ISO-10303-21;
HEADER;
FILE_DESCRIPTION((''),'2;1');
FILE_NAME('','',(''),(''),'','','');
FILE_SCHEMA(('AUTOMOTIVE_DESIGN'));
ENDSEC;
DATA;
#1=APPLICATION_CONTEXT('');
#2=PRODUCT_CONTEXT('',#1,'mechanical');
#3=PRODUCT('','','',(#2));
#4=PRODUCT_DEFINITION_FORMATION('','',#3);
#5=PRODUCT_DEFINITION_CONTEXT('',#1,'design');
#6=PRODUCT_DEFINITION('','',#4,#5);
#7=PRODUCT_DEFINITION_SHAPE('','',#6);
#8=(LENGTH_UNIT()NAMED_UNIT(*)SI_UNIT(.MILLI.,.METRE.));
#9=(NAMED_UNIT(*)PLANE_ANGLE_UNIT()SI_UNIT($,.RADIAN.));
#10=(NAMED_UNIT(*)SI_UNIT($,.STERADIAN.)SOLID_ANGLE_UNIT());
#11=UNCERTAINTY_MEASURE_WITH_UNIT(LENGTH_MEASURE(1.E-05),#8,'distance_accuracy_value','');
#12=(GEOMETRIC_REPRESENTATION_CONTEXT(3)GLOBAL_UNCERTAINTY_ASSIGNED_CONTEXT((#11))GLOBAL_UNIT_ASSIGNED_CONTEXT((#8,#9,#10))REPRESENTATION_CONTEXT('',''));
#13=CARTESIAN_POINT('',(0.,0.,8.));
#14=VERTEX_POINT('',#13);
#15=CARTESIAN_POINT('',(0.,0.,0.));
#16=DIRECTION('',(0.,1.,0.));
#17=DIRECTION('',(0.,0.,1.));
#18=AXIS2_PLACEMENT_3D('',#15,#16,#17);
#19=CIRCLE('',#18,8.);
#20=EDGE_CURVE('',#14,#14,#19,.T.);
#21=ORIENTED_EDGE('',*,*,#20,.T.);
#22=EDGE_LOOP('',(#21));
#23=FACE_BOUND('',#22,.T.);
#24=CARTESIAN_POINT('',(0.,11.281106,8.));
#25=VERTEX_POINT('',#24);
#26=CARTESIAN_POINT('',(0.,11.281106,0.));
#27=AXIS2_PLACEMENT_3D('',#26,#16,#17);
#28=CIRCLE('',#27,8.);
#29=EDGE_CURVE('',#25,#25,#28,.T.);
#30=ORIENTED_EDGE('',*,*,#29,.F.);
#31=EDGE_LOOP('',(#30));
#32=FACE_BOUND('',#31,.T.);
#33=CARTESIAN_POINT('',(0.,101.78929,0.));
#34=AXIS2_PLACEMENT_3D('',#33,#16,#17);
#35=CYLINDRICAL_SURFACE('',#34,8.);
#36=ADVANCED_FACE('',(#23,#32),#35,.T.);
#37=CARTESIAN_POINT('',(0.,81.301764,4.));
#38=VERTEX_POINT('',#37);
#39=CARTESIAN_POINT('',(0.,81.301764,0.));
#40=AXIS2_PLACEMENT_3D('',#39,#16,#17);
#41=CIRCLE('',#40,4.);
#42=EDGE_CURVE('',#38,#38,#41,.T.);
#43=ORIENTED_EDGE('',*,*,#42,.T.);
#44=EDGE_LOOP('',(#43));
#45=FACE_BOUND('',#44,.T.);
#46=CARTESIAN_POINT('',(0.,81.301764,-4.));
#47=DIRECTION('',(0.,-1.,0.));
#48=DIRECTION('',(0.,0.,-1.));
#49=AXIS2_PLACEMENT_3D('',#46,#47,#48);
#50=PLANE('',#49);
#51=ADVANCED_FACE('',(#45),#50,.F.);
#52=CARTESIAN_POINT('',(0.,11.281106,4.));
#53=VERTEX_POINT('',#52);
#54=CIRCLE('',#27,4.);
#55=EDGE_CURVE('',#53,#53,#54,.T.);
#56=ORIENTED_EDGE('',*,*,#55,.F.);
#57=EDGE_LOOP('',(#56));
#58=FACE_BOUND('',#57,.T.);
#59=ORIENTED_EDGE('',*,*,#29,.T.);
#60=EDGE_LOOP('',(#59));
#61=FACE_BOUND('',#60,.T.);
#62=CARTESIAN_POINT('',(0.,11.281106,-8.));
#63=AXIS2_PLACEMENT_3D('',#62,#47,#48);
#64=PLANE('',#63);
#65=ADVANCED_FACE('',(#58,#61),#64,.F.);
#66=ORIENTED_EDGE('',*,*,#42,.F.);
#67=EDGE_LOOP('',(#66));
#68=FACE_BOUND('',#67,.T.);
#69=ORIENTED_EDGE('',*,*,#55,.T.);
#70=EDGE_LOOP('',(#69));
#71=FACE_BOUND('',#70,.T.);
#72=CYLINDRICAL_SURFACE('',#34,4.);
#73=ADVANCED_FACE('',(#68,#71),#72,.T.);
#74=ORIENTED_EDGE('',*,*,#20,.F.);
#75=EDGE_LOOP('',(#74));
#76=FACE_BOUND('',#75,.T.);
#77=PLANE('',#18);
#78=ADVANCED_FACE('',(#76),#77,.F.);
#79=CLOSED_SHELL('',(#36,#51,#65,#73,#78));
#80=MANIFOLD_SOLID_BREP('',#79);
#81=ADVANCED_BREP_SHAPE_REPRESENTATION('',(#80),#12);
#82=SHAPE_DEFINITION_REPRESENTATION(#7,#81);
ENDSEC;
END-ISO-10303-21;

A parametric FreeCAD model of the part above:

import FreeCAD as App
import Part
import Sketcher
from FreeCAD import Vector
Q = App.Units.Quantity

doc = App.newDocument("Part")
body = doc.addObject("PartDesign::Body", "Body")

# Sketch on YZ plane
sketch1 = body.newObject("Sketcher::SketchObject", "Sketch")
sketch1.AttachmentSupport = (doc.getObject("YZ_Plane"), [""])
sketch1.MapMode = "FlatFace"
sketch1.addGeometry(Part.LineSegment(Vector(0, 0, 0), Vector(0, -8, 0)), False)
sketch1.addGeometry(Part.LineSegment(Vector(0, -8, 0), Vector(11.3, -8, 0)), False)
sketch1.addGeometry(Part.LineSegment(Vector(11.3, -8, 0), Vector(11.3, -4, 0)), False)
sketch1.addGeometry(Part.LineSegment(Vector(11.3, -4, 0), Vector(81.3, -4, 0)), False)
sketch1.addGeometry(Part.LineSegment(Vector(81.3, -4, 0), Vector(81.3, 0, 0)), False)
sketch1.addGeometry(Part.LineSegment(Vector(81.3, 0, 0), Vector(0, 0, 0)), False)
sketch1.addConstraint(Sketcher.Constraint("Coincident", 0, 2, 1, 1))
sketch1.addConstraint(Sketcher.Constraint("Coincident", 1, 2, 2, 1))
sketch1.addConstraint(Sketcher.Constraint("Coincident", 2, 2, 3, 1))
sketch1.addConstraint(Sketcher.Constraint("Coincident", 3, 2, 4, 1))
sketch1.addConstraint(Sketcher.Constraint("Coincident", 4, 2, 5, 1))
sketch1.addConstraint(Sketcher.Constraint("Coincident", 5, 2, 0, 1))
sketch1.addConstraint(Sketcher.Constraint("Vertical", 0))
sketch1.addConstraint(Sketcher.Constraint("Horizontal", 1))
sketch1.addConstraint(Sketcher.Constraint("Vertical", 2))
sketch1.addConstraint(Sketcher.Constraint("Horizontal", 3))
sketch1.addConstraint(Sketcher.Constraint("Vertical", 4))
sketch1.addConstraint(Sketcher.Constraint("Horizontal", 5))
sketch1.addConstraint(Sketcher.Constraint("Coincident", 5, 2, -1, 1))
sketch1.addConstraint(Sketcher.Constraint("Equal", 2, 4))
sketch1.addConstraint(Sketcher.Constraint("DistanceY", 0, 2, 0, 1, Q("8 mm")))
sketch1.addConstraint(Sketcher.Constraint("DistanceX", 1, 1, 1, 2, Q("11.281106 mm")))
sketch1.addConstraint(Sketcher.Constraint("DistanceX", 3, 1, 3, 2, Q("70.020658 mm")))
revolution = body.newObject("PartDesign::Revolution", "Revolution")
revolution.Profile = sketch1
revolution.ReferenceAxis = (sketch1, ["H_Axis"])
revolution.Angle = 360

doc.recompute()
